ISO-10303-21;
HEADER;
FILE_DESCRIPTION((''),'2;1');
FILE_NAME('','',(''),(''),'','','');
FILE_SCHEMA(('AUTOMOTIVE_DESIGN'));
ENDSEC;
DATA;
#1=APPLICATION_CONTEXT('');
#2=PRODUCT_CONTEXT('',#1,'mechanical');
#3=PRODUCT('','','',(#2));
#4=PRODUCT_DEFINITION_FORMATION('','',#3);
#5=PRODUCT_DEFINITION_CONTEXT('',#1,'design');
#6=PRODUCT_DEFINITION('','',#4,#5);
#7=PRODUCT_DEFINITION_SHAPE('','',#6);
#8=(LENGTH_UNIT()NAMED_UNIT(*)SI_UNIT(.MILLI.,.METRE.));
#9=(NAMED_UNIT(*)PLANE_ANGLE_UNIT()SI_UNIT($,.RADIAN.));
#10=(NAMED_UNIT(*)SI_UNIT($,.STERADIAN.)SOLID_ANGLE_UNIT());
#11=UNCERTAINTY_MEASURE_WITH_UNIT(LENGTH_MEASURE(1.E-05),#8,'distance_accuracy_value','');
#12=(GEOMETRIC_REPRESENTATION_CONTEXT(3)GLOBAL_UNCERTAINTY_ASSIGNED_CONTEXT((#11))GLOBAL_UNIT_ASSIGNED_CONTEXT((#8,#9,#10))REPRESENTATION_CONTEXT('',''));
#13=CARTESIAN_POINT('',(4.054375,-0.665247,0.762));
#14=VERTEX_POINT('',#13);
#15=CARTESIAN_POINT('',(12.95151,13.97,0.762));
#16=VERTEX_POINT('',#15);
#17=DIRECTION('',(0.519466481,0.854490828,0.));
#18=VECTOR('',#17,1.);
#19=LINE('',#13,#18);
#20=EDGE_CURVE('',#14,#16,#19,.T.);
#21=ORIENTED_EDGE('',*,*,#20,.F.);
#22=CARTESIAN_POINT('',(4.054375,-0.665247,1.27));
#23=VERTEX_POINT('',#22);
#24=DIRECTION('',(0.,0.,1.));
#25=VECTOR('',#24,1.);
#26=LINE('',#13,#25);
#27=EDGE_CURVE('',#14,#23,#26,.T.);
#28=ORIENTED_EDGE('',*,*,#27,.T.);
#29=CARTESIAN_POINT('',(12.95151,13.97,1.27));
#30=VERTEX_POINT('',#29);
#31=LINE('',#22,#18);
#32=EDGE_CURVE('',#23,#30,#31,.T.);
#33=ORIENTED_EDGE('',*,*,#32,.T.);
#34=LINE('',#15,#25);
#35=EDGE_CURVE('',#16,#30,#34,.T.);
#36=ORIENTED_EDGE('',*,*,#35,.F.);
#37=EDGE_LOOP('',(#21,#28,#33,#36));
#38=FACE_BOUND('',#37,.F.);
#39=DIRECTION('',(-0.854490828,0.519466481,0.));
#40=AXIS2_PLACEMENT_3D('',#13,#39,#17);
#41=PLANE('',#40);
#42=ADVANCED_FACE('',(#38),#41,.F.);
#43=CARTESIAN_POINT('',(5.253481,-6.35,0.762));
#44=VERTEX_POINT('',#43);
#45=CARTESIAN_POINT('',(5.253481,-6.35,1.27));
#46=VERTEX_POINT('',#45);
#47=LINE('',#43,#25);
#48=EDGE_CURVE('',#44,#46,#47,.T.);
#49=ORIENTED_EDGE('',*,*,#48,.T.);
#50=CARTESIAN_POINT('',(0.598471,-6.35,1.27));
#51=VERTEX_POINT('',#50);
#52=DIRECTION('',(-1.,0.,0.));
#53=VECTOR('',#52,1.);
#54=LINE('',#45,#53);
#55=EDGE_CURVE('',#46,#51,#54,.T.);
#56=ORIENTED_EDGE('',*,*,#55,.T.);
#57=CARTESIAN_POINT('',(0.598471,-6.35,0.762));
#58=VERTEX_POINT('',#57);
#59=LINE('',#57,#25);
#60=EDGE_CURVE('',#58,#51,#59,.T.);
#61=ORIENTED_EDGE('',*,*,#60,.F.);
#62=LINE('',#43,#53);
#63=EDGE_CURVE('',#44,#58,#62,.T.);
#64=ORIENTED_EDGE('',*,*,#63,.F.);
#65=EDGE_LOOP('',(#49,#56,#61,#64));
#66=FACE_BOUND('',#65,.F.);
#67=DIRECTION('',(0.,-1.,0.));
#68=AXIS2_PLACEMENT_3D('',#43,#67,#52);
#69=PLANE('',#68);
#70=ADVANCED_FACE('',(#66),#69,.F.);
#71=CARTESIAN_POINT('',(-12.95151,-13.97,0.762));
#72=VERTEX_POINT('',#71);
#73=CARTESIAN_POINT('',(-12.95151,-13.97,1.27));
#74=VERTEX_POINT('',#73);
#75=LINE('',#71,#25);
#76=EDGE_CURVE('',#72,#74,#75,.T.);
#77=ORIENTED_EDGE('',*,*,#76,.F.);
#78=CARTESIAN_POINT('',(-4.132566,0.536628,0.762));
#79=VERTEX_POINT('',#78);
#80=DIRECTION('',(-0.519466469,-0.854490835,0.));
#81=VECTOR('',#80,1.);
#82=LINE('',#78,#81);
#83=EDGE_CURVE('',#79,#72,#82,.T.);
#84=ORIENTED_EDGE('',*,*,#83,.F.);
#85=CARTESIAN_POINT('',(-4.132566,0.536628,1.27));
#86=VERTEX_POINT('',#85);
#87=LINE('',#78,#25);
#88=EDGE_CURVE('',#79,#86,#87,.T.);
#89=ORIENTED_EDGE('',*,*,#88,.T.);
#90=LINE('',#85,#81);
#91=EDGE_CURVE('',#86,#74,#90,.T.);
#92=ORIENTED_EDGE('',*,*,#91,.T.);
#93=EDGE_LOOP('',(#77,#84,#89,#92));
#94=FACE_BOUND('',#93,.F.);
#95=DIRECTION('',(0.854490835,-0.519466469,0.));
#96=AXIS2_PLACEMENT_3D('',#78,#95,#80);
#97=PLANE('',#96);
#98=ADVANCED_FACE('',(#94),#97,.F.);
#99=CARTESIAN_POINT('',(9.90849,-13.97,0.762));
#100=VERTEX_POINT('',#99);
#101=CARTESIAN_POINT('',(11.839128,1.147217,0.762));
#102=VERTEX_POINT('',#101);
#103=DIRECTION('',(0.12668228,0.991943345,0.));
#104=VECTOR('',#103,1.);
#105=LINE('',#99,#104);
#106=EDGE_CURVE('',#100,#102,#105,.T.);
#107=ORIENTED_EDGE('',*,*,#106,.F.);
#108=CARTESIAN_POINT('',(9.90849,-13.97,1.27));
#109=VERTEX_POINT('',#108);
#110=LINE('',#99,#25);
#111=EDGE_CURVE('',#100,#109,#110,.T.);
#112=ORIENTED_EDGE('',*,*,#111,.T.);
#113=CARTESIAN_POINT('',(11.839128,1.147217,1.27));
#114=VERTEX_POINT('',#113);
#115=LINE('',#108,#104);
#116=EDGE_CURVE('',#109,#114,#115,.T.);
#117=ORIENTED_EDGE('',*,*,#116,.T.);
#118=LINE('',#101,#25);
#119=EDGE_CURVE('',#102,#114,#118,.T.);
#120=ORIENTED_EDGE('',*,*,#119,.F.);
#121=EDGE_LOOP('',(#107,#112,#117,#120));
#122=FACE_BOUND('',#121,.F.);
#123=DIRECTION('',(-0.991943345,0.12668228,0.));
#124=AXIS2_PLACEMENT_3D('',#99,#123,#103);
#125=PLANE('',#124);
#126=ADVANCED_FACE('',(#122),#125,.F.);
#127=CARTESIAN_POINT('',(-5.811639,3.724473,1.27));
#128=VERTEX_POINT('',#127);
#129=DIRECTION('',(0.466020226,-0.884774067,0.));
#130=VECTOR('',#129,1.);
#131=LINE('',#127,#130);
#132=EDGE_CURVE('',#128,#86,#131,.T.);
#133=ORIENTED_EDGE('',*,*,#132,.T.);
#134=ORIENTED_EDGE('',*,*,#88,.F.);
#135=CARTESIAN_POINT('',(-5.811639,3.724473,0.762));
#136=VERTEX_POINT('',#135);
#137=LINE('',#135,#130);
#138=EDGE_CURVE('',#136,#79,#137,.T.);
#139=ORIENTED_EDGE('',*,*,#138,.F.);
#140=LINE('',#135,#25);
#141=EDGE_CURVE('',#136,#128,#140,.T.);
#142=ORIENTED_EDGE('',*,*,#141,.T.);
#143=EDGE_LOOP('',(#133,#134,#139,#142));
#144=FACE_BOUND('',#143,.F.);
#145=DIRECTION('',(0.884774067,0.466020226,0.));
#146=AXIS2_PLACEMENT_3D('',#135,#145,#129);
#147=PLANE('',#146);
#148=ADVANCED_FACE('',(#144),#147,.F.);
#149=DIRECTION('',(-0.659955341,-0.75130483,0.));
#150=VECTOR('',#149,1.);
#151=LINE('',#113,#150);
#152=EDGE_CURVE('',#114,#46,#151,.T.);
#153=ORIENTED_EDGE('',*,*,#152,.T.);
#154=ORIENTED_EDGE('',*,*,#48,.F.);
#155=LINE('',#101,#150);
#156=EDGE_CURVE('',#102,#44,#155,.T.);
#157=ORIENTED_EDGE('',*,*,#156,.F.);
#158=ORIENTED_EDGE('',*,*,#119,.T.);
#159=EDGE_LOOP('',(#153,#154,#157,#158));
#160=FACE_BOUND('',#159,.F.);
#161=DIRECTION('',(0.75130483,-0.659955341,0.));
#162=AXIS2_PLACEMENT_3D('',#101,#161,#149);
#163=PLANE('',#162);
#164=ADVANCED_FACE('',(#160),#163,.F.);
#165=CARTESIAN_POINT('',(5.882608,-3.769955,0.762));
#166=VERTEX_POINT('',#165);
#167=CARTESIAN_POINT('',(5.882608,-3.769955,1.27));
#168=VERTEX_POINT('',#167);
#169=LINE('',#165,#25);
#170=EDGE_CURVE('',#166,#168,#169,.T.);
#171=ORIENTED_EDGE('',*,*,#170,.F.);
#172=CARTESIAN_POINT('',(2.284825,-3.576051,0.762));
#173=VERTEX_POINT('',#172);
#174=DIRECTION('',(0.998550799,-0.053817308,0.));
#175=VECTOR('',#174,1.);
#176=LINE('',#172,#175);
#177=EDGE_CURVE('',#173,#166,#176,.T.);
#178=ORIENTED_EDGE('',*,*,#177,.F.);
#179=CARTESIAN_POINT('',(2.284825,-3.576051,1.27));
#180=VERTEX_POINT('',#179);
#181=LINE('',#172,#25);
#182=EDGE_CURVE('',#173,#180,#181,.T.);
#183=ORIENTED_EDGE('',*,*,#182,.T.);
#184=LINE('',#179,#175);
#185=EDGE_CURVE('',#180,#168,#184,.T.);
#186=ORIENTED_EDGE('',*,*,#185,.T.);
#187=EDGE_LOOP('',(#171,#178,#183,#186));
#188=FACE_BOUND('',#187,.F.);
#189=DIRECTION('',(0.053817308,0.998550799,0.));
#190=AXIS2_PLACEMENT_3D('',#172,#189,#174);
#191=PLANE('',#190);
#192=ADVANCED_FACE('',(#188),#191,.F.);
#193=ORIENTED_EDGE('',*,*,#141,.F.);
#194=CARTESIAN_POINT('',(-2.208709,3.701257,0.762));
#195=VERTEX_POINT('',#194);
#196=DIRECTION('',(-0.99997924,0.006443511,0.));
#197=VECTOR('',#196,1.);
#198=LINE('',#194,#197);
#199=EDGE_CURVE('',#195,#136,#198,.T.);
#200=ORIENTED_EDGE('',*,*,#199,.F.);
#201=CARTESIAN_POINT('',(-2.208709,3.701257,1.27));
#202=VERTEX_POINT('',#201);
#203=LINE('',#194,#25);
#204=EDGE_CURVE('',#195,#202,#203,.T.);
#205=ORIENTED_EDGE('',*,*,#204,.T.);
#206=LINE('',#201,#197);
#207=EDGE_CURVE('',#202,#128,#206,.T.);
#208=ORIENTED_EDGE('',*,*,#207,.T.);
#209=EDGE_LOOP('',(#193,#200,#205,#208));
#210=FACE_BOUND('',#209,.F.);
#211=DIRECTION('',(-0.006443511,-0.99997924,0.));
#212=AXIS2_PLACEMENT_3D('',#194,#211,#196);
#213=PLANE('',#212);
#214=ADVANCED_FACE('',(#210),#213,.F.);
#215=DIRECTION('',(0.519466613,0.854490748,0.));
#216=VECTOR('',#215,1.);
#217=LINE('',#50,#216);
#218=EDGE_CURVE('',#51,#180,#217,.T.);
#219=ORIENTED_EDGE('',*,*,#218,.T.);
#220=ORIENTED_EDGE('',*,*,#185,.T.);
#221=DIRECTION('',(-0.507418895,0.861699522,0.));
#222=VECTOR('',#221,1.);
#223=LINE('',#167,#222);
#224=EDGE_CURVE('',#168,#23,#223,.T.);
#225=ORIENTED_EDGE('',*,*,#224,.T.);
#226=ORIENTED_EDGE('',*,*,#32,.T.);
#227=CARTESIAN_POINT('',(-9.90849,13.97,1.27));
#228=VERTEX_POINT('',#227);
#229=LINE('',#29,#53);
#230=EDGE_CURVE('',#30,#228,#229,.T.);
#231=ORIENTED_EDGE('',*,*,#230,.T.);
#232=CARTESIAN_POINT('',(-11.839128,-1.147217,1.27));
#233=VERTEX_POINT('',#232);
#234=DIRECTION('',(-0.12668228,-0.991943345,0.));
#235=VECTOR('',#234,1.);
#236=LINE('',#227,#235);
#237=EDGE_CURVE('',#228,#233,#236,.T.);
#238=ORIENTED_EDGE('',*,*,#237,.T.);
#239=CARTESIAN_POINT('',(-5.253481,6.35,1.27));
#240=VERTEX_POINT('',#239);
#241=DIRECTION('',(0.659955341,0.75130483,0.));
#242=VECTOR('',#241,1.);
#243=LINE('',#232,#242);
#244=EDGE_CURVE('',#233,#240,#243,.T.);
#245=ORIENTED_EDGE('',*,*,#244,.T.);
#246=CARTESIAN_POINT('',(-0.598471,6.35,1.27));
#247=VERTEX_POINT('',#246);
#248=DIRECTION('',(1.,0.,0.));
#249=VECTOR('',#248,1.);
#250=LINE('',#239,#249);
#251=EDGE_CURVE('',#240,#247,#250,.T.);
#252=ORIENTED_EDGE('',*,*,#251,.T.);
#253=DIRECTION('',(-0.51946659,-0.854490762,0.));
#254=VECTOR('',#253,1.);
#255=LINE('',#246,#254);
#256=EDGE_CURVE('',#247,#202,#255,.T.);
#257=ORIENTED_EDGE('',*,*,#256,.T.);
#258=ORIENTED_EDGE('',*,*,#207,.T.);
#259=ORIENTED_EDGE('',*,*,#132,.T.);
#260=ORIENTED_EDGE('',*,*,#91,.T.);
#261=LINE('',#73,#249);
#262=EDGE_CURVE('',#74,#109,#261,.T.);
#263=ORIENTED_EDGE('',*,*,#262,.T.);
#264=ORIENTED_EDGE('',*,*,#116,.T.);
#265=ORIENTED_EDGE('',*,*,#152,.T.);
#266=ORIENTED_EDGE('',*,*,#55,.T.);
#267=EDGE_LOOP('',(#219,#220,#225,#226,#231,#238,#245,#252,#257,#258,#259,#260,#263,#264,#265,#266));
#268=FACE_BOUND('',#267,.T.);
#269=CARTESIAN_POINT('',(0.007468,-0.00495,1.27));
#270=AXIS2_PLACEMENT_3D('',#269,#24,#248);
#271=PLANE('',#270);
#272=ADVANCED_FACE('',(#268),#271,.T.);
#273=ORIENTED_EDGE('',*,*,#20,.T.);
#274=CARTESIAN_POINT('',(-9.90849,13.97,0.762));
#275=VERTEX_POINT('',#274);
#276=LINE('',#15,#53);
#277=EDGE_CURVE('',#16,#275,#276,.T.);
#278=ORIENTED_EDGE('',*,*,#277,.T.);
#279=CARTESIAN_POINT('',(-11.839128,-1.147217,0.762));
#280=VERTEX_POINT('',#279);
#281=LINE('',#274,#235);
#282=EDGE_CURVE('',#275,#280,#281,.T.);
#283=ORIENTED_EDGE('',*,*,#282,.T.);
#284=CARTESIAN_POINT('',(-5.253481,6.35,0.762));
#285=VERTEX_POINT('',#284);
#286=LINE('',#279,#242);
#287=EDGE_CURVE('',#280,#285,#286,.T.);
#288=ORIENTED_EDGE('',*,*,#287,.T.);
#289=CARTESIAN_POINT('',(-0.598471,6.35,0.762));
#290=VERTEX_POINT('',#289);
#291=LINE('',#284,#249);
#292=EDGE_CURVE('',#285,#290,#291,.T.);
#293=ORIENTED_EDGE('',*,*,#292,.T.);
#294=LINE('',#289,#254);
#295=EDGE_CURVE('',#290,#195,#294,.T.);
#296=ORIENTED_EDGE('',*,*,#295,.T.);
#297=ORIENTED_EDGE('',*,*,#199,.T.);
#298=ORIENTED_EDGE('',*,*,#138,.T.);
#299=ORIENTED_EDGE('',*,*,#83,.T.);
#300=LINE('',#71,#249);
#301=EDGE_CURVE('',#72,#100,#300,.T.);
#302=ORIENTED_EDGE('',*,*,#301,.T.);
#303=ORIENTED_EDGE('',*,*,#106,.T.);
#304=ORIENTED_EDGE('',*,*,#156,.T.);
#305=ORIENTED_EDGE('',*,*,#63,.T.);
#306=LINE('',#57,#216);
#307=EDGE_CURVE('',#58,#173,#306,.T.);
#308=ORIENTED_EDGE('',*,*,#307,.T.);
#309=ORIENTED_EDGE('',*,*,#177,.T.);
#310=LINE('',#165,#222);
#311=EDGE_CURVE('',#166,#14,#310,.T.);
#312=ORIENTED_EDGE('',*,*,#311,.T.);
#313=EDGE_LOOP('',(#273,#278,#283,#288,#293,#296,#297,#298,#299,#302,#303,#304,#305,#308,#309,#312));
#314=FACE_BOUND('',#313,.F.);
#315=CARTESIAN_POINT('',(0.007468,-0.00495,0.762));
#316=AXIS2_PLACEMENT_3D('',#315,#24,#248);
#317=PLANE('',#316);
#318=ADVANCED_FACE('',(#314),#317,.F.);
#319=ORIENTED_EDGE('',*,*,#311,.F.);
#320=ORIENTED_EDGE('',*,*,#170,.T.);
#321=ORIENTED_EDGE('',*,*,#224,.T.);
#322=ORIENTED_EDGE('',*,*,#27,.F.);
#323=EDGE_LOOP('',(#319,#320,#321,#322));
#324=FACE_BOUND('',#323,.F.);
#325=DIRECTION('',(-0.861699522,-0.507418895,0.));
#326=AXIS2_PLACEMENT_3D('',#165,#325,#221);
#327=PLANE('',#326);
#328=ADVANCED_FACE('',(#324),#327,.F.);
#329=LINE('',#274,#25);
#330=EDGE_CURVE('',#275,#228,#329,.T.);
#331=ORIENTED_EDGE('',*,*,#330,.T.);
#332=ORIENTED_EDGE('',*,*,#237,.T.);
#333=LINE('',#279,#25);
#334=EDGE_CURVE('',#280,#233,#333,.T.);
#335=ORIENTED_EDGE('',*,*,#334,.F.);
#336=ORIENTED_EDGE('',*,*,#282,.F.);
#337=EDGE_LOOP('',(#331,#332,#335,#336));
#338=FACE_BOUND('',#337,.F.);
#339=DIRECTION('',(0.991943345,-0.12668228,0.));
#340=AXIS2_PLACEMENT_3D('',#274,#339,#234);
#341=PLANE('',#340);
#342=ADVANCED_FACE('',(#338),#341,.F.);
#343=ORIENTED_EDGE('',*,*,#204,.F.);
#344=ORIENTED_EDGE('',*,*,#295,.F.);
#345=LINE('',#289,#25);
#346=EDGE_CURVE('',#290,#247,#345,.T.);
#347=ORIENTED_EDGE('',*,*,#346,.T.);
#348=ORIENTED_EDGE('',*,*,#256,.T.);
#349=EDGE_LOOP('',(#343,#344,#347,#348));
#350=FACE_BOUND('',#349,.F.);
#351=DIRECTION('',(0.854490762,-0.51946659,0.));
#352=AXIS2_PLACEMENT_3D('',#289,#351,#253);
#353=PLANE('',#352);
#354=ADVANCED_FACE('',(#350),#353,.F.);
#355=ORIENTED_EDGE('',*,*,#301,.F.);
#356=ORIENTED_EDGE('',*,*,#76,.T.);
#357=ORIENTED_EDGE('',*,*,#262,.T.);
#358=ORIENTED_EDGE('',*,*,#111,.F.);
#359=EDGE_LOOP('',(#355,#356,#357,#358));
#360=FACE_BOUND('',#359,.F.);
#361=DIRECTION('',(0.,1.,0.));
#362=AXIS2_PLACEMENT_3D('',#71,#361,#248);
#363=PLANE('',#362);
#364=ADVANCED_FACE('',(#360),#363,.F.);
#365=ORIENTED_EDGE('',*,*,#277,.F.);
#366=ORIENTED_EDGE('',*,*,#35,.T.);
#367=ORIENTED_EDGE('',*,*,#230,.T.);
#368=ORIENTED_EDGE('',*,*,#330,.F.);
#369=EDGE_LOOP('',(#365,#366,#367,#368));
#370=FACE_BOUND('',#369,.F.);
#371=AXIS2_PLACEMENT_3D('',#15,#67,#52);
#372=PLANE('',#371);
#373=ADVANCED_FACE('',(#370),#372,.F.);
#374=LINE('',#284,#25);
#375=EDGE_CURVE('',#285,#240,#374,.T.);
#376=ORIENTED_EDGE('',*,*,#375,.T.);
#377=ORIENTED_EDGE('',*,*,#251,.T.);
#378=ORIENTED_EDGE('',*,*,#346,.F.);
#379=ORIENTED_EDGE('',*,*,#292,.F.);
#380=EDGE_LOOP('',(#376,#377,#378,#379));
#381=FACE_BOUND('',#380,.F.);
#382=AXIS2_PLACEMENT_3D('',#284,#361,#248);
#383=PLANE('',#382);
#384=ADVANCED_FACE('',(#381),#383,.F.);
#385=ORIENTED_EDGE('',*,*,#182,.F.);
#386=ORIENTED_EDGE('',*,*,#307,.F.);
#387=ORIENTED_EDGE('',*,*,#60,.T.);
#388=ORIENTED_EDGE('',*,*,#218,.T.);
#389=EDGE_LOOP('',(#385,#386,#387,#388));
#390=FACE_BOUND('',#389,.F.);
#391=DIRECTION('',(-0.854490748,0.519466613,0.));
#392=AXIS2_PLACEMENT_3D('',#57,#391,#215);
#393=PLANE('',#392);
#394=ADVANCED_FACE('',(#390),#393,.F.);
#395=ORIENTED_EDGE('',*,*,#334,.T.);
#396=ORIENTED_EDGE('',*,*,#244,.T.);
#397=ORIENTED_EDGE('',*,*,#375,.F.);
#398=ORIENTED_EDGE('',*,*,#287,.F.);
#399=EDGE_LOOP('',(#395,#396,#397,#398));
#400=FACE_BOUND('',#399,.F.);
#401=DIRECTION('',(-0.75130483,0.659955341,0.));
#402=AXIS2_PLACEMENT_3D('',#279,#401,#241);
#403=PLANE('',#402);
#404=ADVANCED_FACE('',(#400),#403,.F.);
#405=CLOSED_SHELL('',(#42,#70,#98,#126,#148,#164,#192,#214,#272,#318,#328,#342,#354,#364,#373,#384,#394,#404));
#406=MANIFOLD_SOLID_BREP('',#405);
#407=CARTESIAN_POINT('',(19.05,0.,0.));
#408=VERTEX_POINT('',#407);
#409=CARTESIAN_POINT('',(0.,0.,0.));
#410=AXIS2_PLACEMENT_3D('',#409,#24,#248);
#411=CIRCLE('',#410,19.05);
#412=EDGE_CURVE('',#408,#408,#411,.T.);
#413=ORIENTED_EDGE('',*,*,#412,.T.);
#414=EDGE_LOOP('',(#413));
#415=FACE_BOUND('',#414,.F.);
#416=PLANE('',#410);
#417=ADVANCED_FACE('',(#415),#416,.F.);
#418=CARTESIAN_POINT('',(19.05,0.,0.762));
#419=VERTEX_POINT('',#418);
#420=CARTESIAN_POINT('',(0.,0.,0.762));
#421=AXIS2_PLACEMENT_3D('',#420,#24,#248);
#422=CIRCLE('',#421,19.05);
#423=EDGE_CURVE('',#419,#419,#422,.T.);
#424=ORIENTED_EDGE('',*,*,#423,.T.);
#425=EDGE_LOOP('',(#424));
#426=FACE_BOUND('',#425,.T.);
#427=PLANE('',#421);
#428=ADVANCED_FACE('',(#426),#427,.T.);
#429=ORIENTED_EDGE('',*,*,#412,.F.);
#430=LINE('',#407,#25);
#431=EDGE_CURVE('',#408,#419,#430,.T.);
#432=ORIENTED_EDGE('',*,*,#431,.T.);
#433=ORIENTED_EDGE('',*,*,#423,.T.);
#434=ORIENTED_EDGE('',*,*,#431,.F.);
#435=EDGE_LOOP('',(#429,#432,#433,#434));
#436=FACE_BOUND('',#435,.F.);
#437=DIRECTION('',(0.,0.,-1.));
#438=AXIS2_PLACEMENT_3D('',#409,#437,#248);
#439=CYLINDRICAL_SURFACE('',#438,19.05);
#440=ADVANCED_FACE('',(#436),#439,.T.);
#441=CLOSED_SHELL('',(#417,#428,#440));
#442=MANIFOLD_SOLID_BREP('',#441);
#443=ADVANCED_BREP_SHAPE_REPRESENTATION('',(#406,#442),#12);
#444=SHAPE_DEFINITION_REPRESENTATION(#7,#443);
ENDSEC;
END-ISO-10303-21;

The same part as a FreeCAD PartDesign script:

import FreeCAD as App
import Part
import Sketcher
from FreeCAD import Vector
Q = App.Units.Quantity

doc = App.newDocument("Part")
body = doc.addObject("PartDesign::Body", "Body")

sketch1 = doc.addObject("Sketcher::SketchObject", "Sketch")
body.addObject(sketch1)
sketch1.AttachmentSupport = (doc.XY_Plane, [""])
sketch1.MapMode = "FlatFace"
sketch1.addGeometry(Part.Circle(Vector(0, 0, 0), Vector(0, 0, 1), 19), False)
sketch1.addConstraint([
    Sketcher.Constraint("Coincident", 0, 3, -1, 1),
    Sketcher.Constraint("Diameter", 0, Q("1.5 in")),
])
pad1 = doc.addObject("PartDesign::Pad", "Pad")
body.addObject(pad1)
pad1.Profile = sketch1
pad1.Length = Q("0.03 in")
body2 = doc.addObject("PartDesign::Body", "Body001")

sketch2 = doc.addObject("Sketcher::SketchObject", "Sketch001")
body2.addObject(sketch2)
sketch2.AttachmentSupport = (doc.getObject("XY_Plane001"), [""])
sketch2.MapMode = "FlatFace"
sketch2.AttachmentOffset = App.Placement(Vector(0, 0, 0.03 * 25.4), App.Rotation())
sketch2.addGeometry([
    Part.LineSegment(Vector(13, 14, 0), Vector(-9.9, 14, 0)),
    Part.LineSegment(Vector(-9.9, 14, 0), Vector(-11.8, -1.1, 0)),
    Part.LineSegment(Vector(-11.8, -1.1, 0), Vector(-5.3, 6.3, 0)),
    Part.LineSegment(Vector(-5.3, 6.3, 0), Vector(-0.6, 6.3, 0)),
    Part.LineSegment(Vector(-0.6, 6.3, 0), Vector(-2.2, 3.7, 0)),
    Part.LineSegment(Vector(-2.2, 3.7, 0), Vector(-5.8, 3.7, 0)),
    Part.LineSegment(Vector(-5.8, 3.7, 0), Vector(-4.1, 0.5, 0)),
    Part.LineSegment(Vector(-4.1, 0.5, 0), Vector(-13, -14, 0)),
    Part.LineSegment(Vector(-13, -14, 0), Vector(9.9, -14, 0)),
    Part.LineSegment(Vector(9.9, -14, 0), Vector(11.8, 1.1, 0)),
    Part.LineSegment(Vector(11.8, 1.1, 0), Vector(5.3, -6.3, 0)),
    Part.LineSegment(Vector(5.3, -6.3, 0), Vector(0.6, -6.3, 0)),
    Part.LineSegment(Vector(0.6, -6.3, 0), Vector(2.3, -3.6, 0)),
    Part.LineSegment(Vector(2.3, -3.6, 0), Vector(5.9, -3.8, 0)),
    Part.LineSegment(Vector(5.9, -3.8, 0), Vector(4.1, -0.7, 0)),
    Part.LineSegment(Vector(4.1, -0.7, 0), Vector(13, 14, 0)),
], False)
sketch2.addConstraint([
    Sketcher.Constraint("Coincident", 0, 2, 1, 1),
    Sketcher.Constraint("Coincident", 1, 2, 2, 1),
    Sketcher.Constraint("Coincident", 2, 2, 3, 1),
    Sketcher.Constraint("Coincident", 3, 2, 4, 1),
    Sketcher.Constraint("Coincident", 4, 2, 5, 1),
    Sketcher.Constraint("Coincident", 5, 2, 6, 1),
    Sketcher.Constraint("Coincident", 6, 2, 7, 1),
    Sketcher.Constraint("Coincident", 7, 2, 8, 1),
    Sketcher.Constraint("Coincident", 8, 2, 9, 1),
    Sketcher.Constraint("Coincident", 9, 2, 10, 1),
    Sketcher.Constraint("Coincident", 10, 2, 11, 1),
    Sketcher.Constraint("Coincident", 11, 2, 12, 1),
    Sketcher.Constraint("Coincident", 12, 2, 13, 1),
    Sketcher.Constraint("Coincident", 13, 2, 14, 1),
    Sketcher.Constraint("Coincident", 14, 2, 15, 1),
    Sketcher.Constraint("Coincident", 15, 2, 0, 1),
    Sketcher.Constraint("Horizontal", 0),
    Sketcher.Constraint("Horizontal", 3),
    Sketcher.Constraint("Horizontal", 8),
    Sketcher.Constraint("Horizontal", 11),
    Sketcher.Constraint("Symmetric", 0, 2, 8, 2, -1, 1),
    Sketcher.Constraint("Symmetric", 1, 2, 9, 2, -1, 1),
    Sketcher.Constraint("Symmetric", 2, 2, 10, 2, -1, 1),
    Sketcher.Constraint("Parallel", 4, 7),
    Sketcher.Constraint("Parallel", 7, 12),
    Sketcher.Constraint("Parallel", 12, 15),
    Sketcher.Constraint("Equal", 0, 8),
    Sketcher.Constraint("Equal", 3, 11),
    Sketcher.Constraint("Equal", 5, 6),
    Sketcher.Constraint("Equal", 6, 13),
    Sketcher.Constraint("Equal", 13, 14),
    Sketcher.Constraint("DistanceX", 0, 2, 0, 1, Q("0.9 in")),
    Sketcher.Constraint("Distance", 1, Q("0.6 in")),
    Sketcher.Constraint("DistanceY", 2, 2, 0, 2, Q("0.3 in")),
    Sketcher.Constraint("DistanceY", 7, 2, 2, 2, Q("0.8 in")),
    Sketcher.Constraint("DistanceX", 3, 1, 3, 2, 4.65501),
    Sketcher.Constraint("DistanceX", 7, 2, 4, 2, 10.742801),
    Sketcher.Constraint("DistanceX", 3, 2, 9, 2, 12.437599),
    Sketcher.Constraint("Distance", 2, 9.978928),
    Sketcher.Constraint("Distance", 4, 3.099791),
    Sketcher.Constraint("Distance", 12, 3.246318),
    Sketcher.Constraint("DistanceX", 0, 2, -1, 1, 9.90849),
    Sketcher.Constraint("DistanceX", 5, 2, -1, 1, 5.811639),
    Sketcher.Constraint("DistanceX", -1, 1, 13, 2, 5.882608),
    Sketcher.Constraint("DistanceY", 1, 2, 5, 2, 4.87169),
])
pad2 = doc.addObject("PartDesign::Pad", "Pad001")
body2.addObject(pad2)
pad2.Profile = sketch2
pad2.Length = Q("0.02 in")

doc.recompute()
